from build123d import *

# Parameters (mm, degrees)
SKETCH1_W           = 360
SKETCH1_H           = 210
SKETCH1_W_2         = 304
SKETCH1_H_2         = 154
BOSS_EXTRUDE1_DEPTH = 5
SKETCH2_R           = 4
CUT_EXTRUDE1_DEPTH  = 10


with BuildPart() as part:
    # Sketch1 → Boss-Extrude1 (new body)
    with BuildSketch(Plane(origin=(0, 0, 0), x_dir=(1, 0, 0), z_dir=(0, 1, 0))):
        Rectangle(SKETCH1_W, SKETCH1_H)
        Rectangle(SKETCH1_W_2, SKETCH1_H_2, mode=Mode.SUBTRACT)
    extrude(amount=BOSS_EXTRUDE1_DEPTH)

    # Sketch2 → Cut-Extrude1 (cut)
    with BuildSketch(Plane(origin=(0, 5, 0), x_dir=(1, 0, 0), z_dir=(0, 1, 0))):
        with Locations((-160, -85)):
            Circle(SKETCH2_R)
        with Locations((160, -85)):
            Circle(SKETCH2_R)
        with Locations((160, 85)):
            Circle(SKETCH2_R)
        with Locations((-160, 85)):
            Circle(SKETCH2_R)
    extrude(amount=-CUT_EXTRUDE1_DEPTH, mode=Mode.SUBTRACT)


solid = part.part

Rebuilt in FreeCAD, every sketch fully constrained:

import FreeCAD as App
import Part
import Sketcher
from FreeCAD import Vector
Q = App.Units.Quantity

doc = App.newDocument("Part")
body = doc.addObject("PartDesign::Body", "Body")

sketch1 = body.newObject("Sketcher::SketchObject", "Sketch")
sketch1.AttachmentSupport = (doc.getObject("XZ_Plane"), [""])
sketch1.MapMode = "FlatFace"
sketch1.addGeometry(Part.LineSegment(Vector(-180, -105, 0), Vector(-180, 105, 0)), False)
sketch1.addGeometry(Part.LineSegment(Vector(-180, 105, 0), Vector(180, 105, 0)), False)
sketch1.addGeometry(Part.LineSegment(Vector(180, 105, 0), Vector(180, -105, 0)), False)
sketch1.addGeometry(Part.LineSegment(Vector(180, -105, 0), Vector(-180, -105, 0)), False)
sketch1.addGeometry(Part.LineSegment(Vector(152, 77, 0), Vector(-152, 77, 0)), False)
sketch1.addGeometry(Part.LineSegment(Vector(-152, 77, 0), Vector(-152, -77, 0)), False)
sketch1.addGeometry(Part.LineSegment(Vector(-152, -77, 0), Vector(152, -77, 0)), False)
sketch1.addGeometry(Part.LineSegment(Vector(152, -77, 0), Vector(152, 77, 0)), False)
sketch1.addConstraint(Sketcher.Constraint("Coincident", 0, 2, 1, 1))
sketch1.addConstraint(Sketcher.Constraint("Coincident", 1, 2, 2, 1))
sketch1.addConstraint(Sketcher.Constraint("Coincident", 2, 2, 3, 1))
sketch1.addConstraint(Sketcher.Constraint("Coincident", 3, 2, 0, 1))
sketch1.addConstraint(Sketcher.Constraint("Coincident", 4, 2, 5, 1))
sketch1.addConstraint(Sketcher.Constraint("Coincident", 5, 2, 6, 1))
sketch1.addConstraint(Sketcher.Constraint("Coincident", 6, 2, 7, 1))
sketch1.addConstraint(Sketcher.Constraint("Coincident", 7, 2, 4, 1))
sketch1.addConstraint(Sketcher.Constraint("Vertical", 0))
sketch1.addConstraint(Sketcher.Constraint("Horizontal", 1))
sketch1.addConstraint(Sketcher.Constraint("Vertical", 2))
sketch1.addConstraint(Sketcher.Constraint("Horizontal", 3))
sketch1.addConstraint(Sketcher.Constraint("Horizontal", 4))
sketch1.addConstraint(Sketcher.Constraint("Vertical", 5))
sketch1.addConstraint(Sketcher.Constraint("Horizontal", 6))
sketch1.addConstraint(Sketcher.Constraint("Vertical", 7))
sketch1.addConstraint(Sketcher.Constraint("Symmetric", 0, 2, 2, 2, -1, 1))
sketch1.addConstraint(Sketcher.Constraint("Symmetric", 4, 2, 6, 2, -1, 1))
sketch1.addConstraint(Sketcher.Constraint("DistanceX", 1, 1, 1, 2, Q("360 mm")))
sketch1.addConstraint(Sketcher.Constraint("DistanceX", 4, 2, 4, 1, Q("304 mm")))
sketch1.addConstraint(Sketcher.Constraint("DistanceY", 0, 1, 0, 2, Q("210 mm")))
sketch1.addConstraint(Sketcher.Constraint("DistanceY", 5, 2, 5, 1, Q("154 mm")))
pad1 = body.newObject("PartDesign::Pad", "Pad")
pad1.Profile = sketch1
pad1.Length = 5
pad1.Reversed = True

sketch2 = body.newObject("Sketcher::SketchObject", "Sketch001")
sketch2.AttachmentSupport = (doc.getObject("XZ_Plane"), [""])
sketch2.MapMode = "FlatFace"
sketch2.AttachmentOffset = App.Placement(Vector(0, 0, -5), App.Rotation())
sketch2.addGeometry(Part.Circle(Vector(-160, 85, 0), Vector(0, 0, 1), 4), False)
sketch2.addGeometry(Part.Circle(Vector(160, 85, 0), Vector(0, 0, 1), 4), False)
sketch2.addGeometry(Part.Circle(Vector(160, -85, 0), Vector(0, 0, 1), 4), False)
sketch2.addGeometry(Part.Circle(Vector(-160, -85, 0), Vector(0, 0, 1), 4), False)
sketch2.addConstraint(Sketcher.Constraint("Equal", 0, 1))
sketch2.addConstraint(Sketcher.Constraint("Equal", 1, 2))
sketch2.addConstraint(Sketcher.Constraint("Equal", 2, 3))
sketch2.addConstraint(Sketcher.Constraint("Symmetric", 0, 3, 2, 3, -1, 1))
sketch2.addConstraint(Sketcher.Constraint("Symmetric", 1, 3, 3, 3, -1, 1))
sketch2.addConstraint(Sketcher.Constraint("Symmetric", 0, 3, 1, 3, -2))
sketch2.addConstraint(Sketcher.Constraint("Diameter", 0, Q("8 mm")))
sketch2.addConstraint(Sketcher.Constraint("DistanceX", 0, 3, -1, 1, Q("160 mm")))
sketch2.addConstraint(Sketcher.Constraint("DistanceY", -1, 1, 0, 3, Q("85 mm")))
pocket1 = body.newObject("PartDesign::Pocket", "Pocket")
pocket1.Profile = sketch2
pocket1.Length = 10
pocket1.Reversed = True

doc.recompute()
